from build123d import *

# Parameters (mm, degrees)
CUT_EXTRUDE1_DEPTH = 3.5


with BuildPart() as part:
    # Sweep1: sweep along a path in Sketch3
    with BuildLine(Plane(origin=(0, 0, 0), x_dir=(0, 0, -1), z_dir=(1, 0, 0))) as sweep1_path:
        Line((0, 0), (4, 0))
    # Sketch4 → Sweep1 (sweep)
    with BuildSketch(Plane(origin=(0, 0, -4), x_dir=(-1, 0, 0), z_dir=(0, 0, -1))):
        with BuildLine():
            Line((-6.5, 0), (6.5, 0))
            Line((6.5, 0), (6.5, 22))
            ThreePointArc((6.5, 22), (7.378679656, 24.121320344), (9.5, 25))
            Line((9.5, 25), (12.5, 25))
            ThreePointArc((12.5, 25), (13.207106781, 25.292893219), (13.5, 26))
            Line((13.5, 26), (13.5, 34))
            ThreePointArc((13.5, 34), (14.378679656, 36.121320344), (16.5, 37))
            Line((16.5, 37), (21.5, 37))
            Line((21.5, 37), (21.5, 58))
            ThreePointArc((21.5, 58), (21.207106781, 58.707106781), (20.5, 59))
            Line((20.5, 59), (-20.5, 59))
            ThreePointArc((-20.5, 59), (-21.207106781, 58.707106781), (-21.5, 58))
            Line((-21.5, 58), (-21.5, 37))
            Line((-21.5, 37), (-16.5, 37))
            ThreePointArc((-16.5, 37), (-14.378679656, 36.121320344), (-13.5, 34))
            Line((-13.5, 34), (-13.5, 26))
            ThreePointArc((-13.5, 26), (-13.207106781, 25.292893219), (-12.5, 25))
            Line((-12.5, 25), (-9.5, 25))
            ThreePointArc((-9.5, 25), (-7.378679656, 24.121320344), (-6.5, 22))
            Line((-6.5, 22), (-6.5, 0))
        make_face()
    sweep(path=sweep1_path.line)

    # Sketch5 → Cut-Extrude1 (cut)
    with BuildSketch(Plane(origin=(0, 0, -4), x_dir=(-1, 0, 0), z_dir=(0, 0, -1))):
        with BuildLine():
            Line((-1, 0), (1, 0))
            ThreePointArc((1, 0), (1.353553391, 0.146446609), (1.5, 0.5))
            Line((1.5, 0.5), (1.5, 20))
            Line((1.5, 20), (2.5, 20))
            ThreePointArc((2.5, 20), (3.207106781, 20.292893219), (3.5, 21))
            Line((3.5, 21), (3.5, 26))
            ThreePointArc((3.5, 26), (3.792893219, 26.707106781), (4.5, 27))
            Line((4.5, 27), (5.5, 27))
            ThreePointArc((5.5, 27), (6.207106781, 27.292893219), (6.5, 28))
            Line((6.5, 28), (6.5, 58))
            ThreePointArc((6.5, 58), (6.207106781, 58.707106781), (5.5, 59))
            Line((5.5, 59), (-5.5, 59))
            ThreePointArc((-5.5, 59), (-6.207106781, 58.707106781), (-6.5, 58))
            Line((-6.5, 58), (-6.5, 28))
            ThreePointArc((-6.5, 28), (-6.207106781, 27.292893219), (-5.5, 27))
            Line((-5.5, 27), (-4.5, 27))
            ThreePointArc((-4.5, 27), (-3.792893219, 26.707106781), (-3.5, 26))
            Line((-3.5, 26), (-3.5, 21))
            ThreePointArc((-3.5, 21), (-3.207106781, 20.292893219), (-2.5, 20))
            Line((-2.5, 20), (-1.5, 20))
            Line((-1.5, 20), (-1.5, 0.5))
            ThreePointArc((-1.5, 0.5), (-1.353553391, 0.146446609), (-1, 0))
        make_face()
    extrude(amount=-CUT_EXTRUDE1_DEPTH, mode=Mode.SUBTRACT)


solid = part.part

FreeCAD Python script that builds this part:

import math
import FreeCAD as App
import Part
import Sketcher
from FreeCAD import Vector
Q = App.Units.Quantity

doc = App.newDocument("Part")
body = doc.addObject("PartDesign::Body", "Body")

sketch1 = body.newObject("Sketcher::SketchObject", "Sketch")
sketch1.AttachmentSupport = (doc.getObject("XY_Plane"), [""])
sketch1.MapMode = "FlatFace"
sketch1.AttachmentOffset = App.Placement(Vector(0, 0, -4), App.Rotation())
sketch1.addGeometry(Part.LineSegment(Vector(6.5, 0, 0), Vector(-6.5, 0, 0)), False)
sketch1.addGeometry(Part.LineSegment(Vector(-6.5, 0, 0), Vector(-6.5, 22, 0)), False)
sketch1.addGeometry(Part.ArcOfCircle(Part.Circle(Vector(-9.5, 22, 0), Vector(0, 0, 1), 3), math.radians(0), math.radians(90)), False)
sketch1.addGeometry(Part.LineSegment(Vector(-9.5, 25, 0), Vector(-12.5, 25, 0)), False)
sketch1.addGeometry(Part.ArcOfCircle(Part.Circle(Vector(-12.5, 26, 0), Vector(0, 0, 1), 1), math.radians(-180), math.radians(-90)), False)
sketch1.addGeometry(Part.LineSegment(Vector(-13.5, 26, 0), Vector(-13.5, 34, 0)), False)
sketch1.addGeometry(Part.ArcOfCircle(Part.Circle(Vector(-16.5, 34, 0), Vector(0, 0, 1), 3), math.radians(0), math.radians(90)), False)
sketch1.addGeometry(Part.LineSegment(Vector(-16.5, 37, 0), Vector(-21.5, 37, 0)), False)
sketch1.addGeometry(Part.LineSegment(Vector(-21.5, 37, 0), Vector(-21.5, 58, 0)), False)
sketch1.addGeometry(Part.ArcOfCircle(Part.Circle(Vector(-20.5, 58, 0), Vector(0, 0, 1), 1), math.radians(90), math.radians(180)), False)
sketch1.addGeometry(Part.LineSegment(Vector(-20.5, 59, 0), Vector(20.5, 59, 0)), False)
sketch1.addGeometry(Part.ArcOfCircle(Part.Circle(Vector(20.5, 58, 0), Vector(0, 0, 1), 1), math.radians(0), math.radians(90)), False)
sketch1.addGeometry(Part.LineSegment(Vector(21.5, 58, 0), Vector(21.5, 37, 0)), False)
sketch1.addGeometry(Part.LineSegment(Vector(21.5, 37, 0), Vector(16.5, 37, 0)), False)
sketch1.addGeometry(Part.ArcOfCircle(Part.Circle(Vector(16.5, 34, 0), Vector(0, 0, 1), 3), math.radians(90), math.radians(180)), False)
sketch1.addGeometry(Part.LineSegment(Vector(13.5, 34, 0), Vector(13.5, 26, 0)), False)
sketch1.addGeometry(Part.ArcOfCircle(Part.Circle(Vector(12.5, 26, 0), Vector(0, 0, 1), 1), math.radians(-90), math.radians(0)), False)
sketch1.addGeometry(Part.LineSegment(Vector(12.5, 25, 0), Vector(9.5, 25, 0)), False)
sketch1.addGeometry(Part.ArcOfCircle(Part.Circle(Vector(9.5, 22, 0), Vector(0, 0, 1), 3), math.radians(90), math.radians(180)), False)
sketch1.addGeometry(Part.LineSegment(Vector(6.5, 22, 0), Vector(6.5, 0, 0)), False)
sketch1.addConstraint(Sketcher.Constraint("Coincident", 0, 2, 1, 1))
sketch1.addConstraint(Sketcher.Constraint("Tangent", 1, 2, 2, 1))
sketch1.addConstraint(Sketcher.Constraint("Tangent", 2, 2, 3, 1))
sketch1.addConstraint(Sketcher.Constraint("Tangent", 3, 2, 4, 2))
sketch1.addConstraint(Sketcher.Constraint("Tangent", 4, 1, 5, 1))
sketch1.addConstraint(Sketcher.Constraint("Tangent", 5, 2, 6, 1))
sketch1.addConstraint(Sketcher.Constraint("Tangent", 6, 2, 7, 1))
sketch1.addConstraint(Sketcher.Constraint("Coincident", 7, 2, 8, 1))
sketch1.addConstraint(Sketcher.Constraint("Tangent", 8, 2, 9, 2))
sketch1.addConstraint(Sketcher.Constraint("Tangent", 9, 1, 10, 1))
sketch1.addConstraint(Sketcher.Constraint("Tangent", 10, 2, 11, 2))
sketch1.addConstraint(Sketcher.Constraint("Tangent", 11, 1, 12, 1))
sketch1.addConstraint(Sketcher.Constraint("Coincident", 12, 2, 13, 1))
sketch1.addConstraint(Sketcher.Constraint("Tangent", 13, 2, 14, 1))
sketch1.addConstraint(Sketcher.Constraint("Tangent", 14, 2, 15, 1))
sketch1.addConstraint(Sketcher.Constraint("Tangent", 15, 2, 16, 2))
sketch1.addConstraint(Sketcher.Constraint("Tangent", 16, 1, 17, 1))
sketch1.addConstraint(Sketcher.Constraint("Tangent", 17, 2, 18, 1))
sketch1.addConstraint(Sketcher.Constraint("Tangent", 18, 2, 19, 1))
sketch1.addConstraint(Sketcher.Constraint("Coincident", 19, 2, 0, 1))
sketch1.addConstraint(Sketcher.Constraint("Horizontal", 0))
sketch1.addConstraint(Sketcher.Constraint("Vertical", 1))
sketch1.addConstraint(Sketcher.Constraint("Horizontal", 3))
sketch1.addConstraint(Sketcher.Constraint("Vertical", 5))
sketch1.addConstraint(Sketcher.Constraint("Horizontal", 7))
sketch1.addConstraint(Sketcher.Constraint("Vertical", 8))
sketch1.addConstraint(Sketcher.Constraint("Horizontal", 10))
sketch1.addConstraint(Sketcher.Constraint("Vertical", 12))
sketch1.addConstraint(Sketcher.Constraint("Horizontal", 13))
sketch1.addConstraint(Sketcher.Constraint("Vertical", 15))
sketch1.addConstraint(Sketcher.Constraint("Horizontal", 17))
sketch1.addConstraint(Sketcher.Constraint("Vertical", 19))
sketch1.addConstraint(Sketcher.Constraint("Equal", 2, 6))
sketch1.addConstraint(Sketcher.Constraint("Equal", 4, 9))
sketch1.addConstraint(Sketcher.Constraint("Equal", 9, 11))
sketch1.addConstraint(Sketcher.Constraint("Equal", 6, 14))
sketch1.addConstraint(Sketcher.Constraint("Equal", 11, 16))
sketch1.addConstraint(Sketcher.Constraint("Equal", 14, 18))
sketch1.addConstraint(Sketcher.Constraint("Symmetric", 0, 2, 19, 2, -1, 1))
sketch1.addConstraint(Sketcher.Constraint("Symmetric", 6, 3, 14, 3, -2))
sketch1.addConstraint(Sketcher.Constraint("Horizontal", 4, 3, 16, 3))
sketch1.addConstraint(Sketcher.Constraint("Equal", 7, 13))
sketch1.addConstraint(Sketcher.Constraint("Radius", 2, Q("3 mm")))
sketch1.addConstraint(Sketcher.Constraint("Radius", 4, Q("1 mm")))
sketch1.addConstraint(Sketcher.Constraint("DistanceX", 0, 2, 0, 1, Q("13 mm")))
sketch1.addConstraint(Sketcher.Constraint("DistanceX", 3, 2, 3, 1, Q("3 mm")))
sketch1.addConstraint(Sketcher.Constraint("DistanceX", 7, 2, 7, 1, Q("5 mm")))
sketch1.addConstraint(Sketcher.Constraint("DistanceY", 1, 1, 1, 2, Q("22 mm")))
sketch1.addConstraint(Sketcher.Constraint("DistanceY", 5, 1, 5, 2, Q("8 mm")))
sketch1.addConstraint(Sketcher.Constraint("DistanceY", 8, 1, 8, 2, Q("21 mm")))

sketch2 = body.newObject("Sketcher::SketchObject", "Sketch001")
sketch2.AttachmentSupport = (doc.getObject("XZ_Plane"), [""])
sketch2.MapMode = "FlatFace"
sketch2.addGeometry(Part.LineSegment(Vector(0, 0, 0), Vector(0, -4, 0)), False)
sketch2.addConstraint(Sketcher.Constraint("Vertical", 0))
sketch2.addConstraint(Sketcher.Constraint("Coincident", 0, 1, -1, 1))
sketch2.addConstraint(Sketcher.Constraint("DistanceY", 0, 2, 0, 1, Q("4 mm")))
doc.recompute()

additivepipe = body.newObject("PartDesign::AdditivePipe", "AdditivePipe")
additivepipe.Profile = sketch1
additivepipe.Spine = (sketch2, ["Edge1"])

sketch3 = body.newObject("Sketcher::SketchObject", "Sketch002")
sketch3.AttachmentSupport = (doc.getObject("XY_Plane"), [""])
sketch3.MapMode = "FlatFace"
sketch3.AttachmentOffset = App.Placement(Vector(0, 0, -4), App.Rotation())
sketch3.addGeometry(Part.LineSegment(Vector(1, 0, 0), Vector(-1, 0, 0)), False)
sketch3.addGeometry(Part.ArcOfCircle(Part.Circle(Vector(-1, 0.5, 0), Vector(0, 0, 1), 0.5), math.radians(180), math.radians(270)), False)
sketch3.addGeometry(Part.LineSegment(Vector(-1.5, 0.5, 0), Vector(-1.5, 20, 0)), False)
sketch3.addGeometry(Part.LineSegment(Vector(-1.5, 20, 0), Vector(-2.5, 20, 0)), False)
sketch3.addGeometry(Part.ArcOfCircle(Part.Circle(Vector(-2.5, 21, 0), Vector(0, 0, 1), 1), math.radians(-180), math.radians(-90)), False)
sketch3.addGeometry(Part.LineSegment(Vector(-3.5, 21, 0), Vector(-3.5, 26, 0)), False)
sketch3.addGeometry(Part.ArcOfCircle(Part.Circle(Vector(-4.5, 26, 0), Vector(0, 0, 1), 1), math.radians(0), math.radians(90)), False)
sketch3.addGeometry(Part.LineSegment(Vector(-4.5, 27, 0), Vector(-5.5, 27, 0)), False)
sketch3.addGeometry(Part.ArcOfCircle(Part.Circle(Vector(-5.5, 28, 0), Vector(0, 0, 1), 1), math.radians(-180), math.radians(-90)), False)
sketch3.addGeometry(Part.LineSegment(Vector(-6.5, 28, 0), Vector(-6.5, 58, 0)), False)
sketch3.addGeometry(Part.ArcOfCircle(Part.Circle(Vector(-5.5, 58, 0), Vector(0, 0, 1), 1), math.radians(90), math.radians(180)), False)
sketch3.addGeometry(Part.LineSegment(Vector(-5.5, 59, 0), Vector(5.5, 59, 0)), False)
sketch3.addGeometry(Part.ArcOfCircle(Part.Circle(Vector(5.5, 58, 0), Vector(0, 0, 1), 1), math.radians(0), math.radians(90)), False)
sketch3.addGeometry(Part.LineSegment(Vector(6.5, 58, 0), Vector(6.5, 28, 0)), False)
sketch3.addGeometry(Part.ArcOfCircle(Part.Circle(Vector(5.5, 28, 0), Vector(0, 0, 1), 1), math.radians(-90), math.radians(0)), False)
sketch3.addGeometry(Part.LineSegment(Vector(5.5, 27, 0), Vector(4.5, 27, 0)), False)
sketch3.addGeometry(Part.ArcOfCircle(Part.Circle(Vector(4.5, 26, 0), Vector(0, 0, 1), 1), math.radians(90), math.radians(180)), False)
sketch3.addGeometry(Part.LineSegment(Vector(3.5, 26, 0), Vector(3.5, 21, 0)), False)
sketch3.addGeometry(Part.ArcOfCircle(Part.Circle(Vector(2.5, 21, 0), Vector(0, 0, 1), 1), math.radians(-90), math.radians(0)), False)
sketch3.addGeometry(Part.LineSegment(Vector(2.5, 20, 0), Vector(1.5, 20, 0)), False)
sketch3.addGeometry(Part.LineSegment(Vector(1.5, 20, 0), Vector(1.5, 0.5, 0)), False)
sketch3.addGeometry(Part.ArcOfCircle(Part.Circle(Vector(1, 0.5, 0), Vector(0, 0, 1), 0.5), math.radians(-90), math.radians(0)), False)
sketch3.addConstraint(Sketcher.Constraint("Tangent", 0, 2, 1, 2))
sketch3.addConstraint(Sketcher.Constraint("Tangent", 1, 1, 2, 1))
sketch3.addConstraint(Sketcher.Constraint("Coincident", 2, 2, 3, 1))
sketch3.addConstraint(Sketcher.Constraint("Tangent", 3, 2, 4, 2))
sketch3.addConstraint(Sketcher.Constraint("Tangent", 4, 1, 5, 1))
sketch3.addConstraint(Sketcher.Constraint("Tangent", 5, 2, 6, 1))
sketch3.addConstraint(Sketcher.Constraint("Tangent", 6, 2, 7, 1))
sketch3.addConstraint(Sketcher.Constraint("Tangent", 7, 2, 8, 2))
sketch3.addConstraint(Sketcher.Constraint("Tangent", 8, 1, 9, 1))
sketch3.addConstraint(Sketcher.Constraint("Tangent", 9, 2, 10, 2))
sketch3.addConstraint(Sketcher.Constraint("Tangent", 10, 1, 11, 1))
sketch3.addConstraint(Sketcher.Constraint("Tangent", 11, 2, 12, 2))
sketch3.addConstraint(Sketcher.Constraint("Tangent", 12, 1, 13, 1))
sketch3.addConstraint(Sketcher.Constraint("Tangent", 13, 2, 14, 2))
sketch3.addConstraint(Sketcher.Constraint("Tangent", 14, 1, 15, 1))
sketch3.addConstraint(Sketcher.Constraint("Tangent", 15, 2, 16, 1))
sketch3.addConstraint(Sketcher.Constraint("Tangent", 16, 2, 17, 1))
sketch3.addConstraint(Sketcher.Constraint("Tangent", 17, 2, 18, 2))
sketch3.addConstraint(Sketcher.Constraint("Tangent", 18, 1, 19, 1))
sketch3.addConstraint(Sketcher.Constraint("Coincident", 19, 2, 20, 1))
sketch3.addConstraint(Sketcher.Constraint("Tangent", 20, 2, 21, 2))
sketch3.addConstraint(Sketcher.Constraint("Tangent", 21, 1, 0, 1))
sketch3.addConstraint(Sketcher.Constraint("Horizontal", 0))
sketch3.addConstraint(Sketcher.Constraint("Vertical", 2))
sketch3.addConstraint(Sketcher.Constraint("Horizontal", 3))
sketch3.addConstraint(Sketcher.Constraint("Vertical", 5))
sketch3.addConstraint(Sketcher.Constraint("Horizontal", 7))
sketch3.addConstraint(Sketcher.Constraint("Vertical", 9))
sketch3.addConstraint(Sketcher.Constraint("Horizontal", 11))
sketch3.addConstraint(Sketcher.Constraint("Vertical", 13))
sketch3.addConstraint(Sketcher.Constraint("Horizontal", 15))
sketch3.addConstraint(Sketcher.Constraint("Vertical", 17))
sketch3.addConstraint(Sketcher.Constraint("Horizontal", 19))
sketch3.addConstraint(Sketcher.Constraint("Vertical", 20))
sketch3.addConstraint(Sketcher.Constraint("Equal", 4, 6))
sketch3.addConstraint(Sketcher.Constraint("Equal", 6, 8))
sketch3.addConstraint(Sketcher.Constraint("Equal", 8, 10))
sketch3.addConstraint(Sketcher.Constraint("Equal", 10, 12))
sketch3.addConstraint(Sketcher.Constraint("Equal", 12, 14))
sketch3.addConstraint(Sketcher.Constraint("Equal", 14, 16))
sketch3.addConstraint(Sketcher.Constraint("Equal", 16, 18))
sketch3.addConstraint(Sketcher.Constraint("Equal", 1, 21))
sketch3.addConstraint(Sketcher.Constraint("Symmetric", 0, 2, 21, 1, -1, 1))
sketch3.addConstraint(Sketcher.Constraint("Symmetric", 8, 3, 14, 3, -2))
sketch3.addConstraint(Sketcher.Constraint("Symmetric", 4, 3, 18, 3, -2))
sketch3.addConstraint(Sketcher.Constraint("Equal", 3, 7))
sketch3.addConstraint(Sketcher.Constraint("Radius", 4, Q("1 mm")))
sketch3.addConstraint(Sketcher.Constraint("Radius", 1, Q("0.5 mm")))
sketch3.addConstraint(Sketcher.Constraint("DistanceX", 0, 2, 0, 1, Q("2 mm")))
sketch3.addConstraint(Sketcher.Constraint("DistanceX", 3, 2, 3, 1, Q("1 mm")))
sketch3.addConstraint(Sketcher.Constraint("DistanceY", 5, 1, 5, 2, Q("5 mm")))
sketch3.addConstraint(Sketcher.Constraint("DistanceY", 9, 1, 9, 2, Q("30 mm")))
sketch3.addConstraint(Sketcher.Constraint("DistanceY", 2, 1, 2, 2, Q("19.5 mm")))
pocket1 = body.newObject("PartDesign::Pocket", "Pocket")
pocket1.Profile = sketch3
pocket1.Length = 3.5
pocket1.Reversed = True

doc.recompute()
